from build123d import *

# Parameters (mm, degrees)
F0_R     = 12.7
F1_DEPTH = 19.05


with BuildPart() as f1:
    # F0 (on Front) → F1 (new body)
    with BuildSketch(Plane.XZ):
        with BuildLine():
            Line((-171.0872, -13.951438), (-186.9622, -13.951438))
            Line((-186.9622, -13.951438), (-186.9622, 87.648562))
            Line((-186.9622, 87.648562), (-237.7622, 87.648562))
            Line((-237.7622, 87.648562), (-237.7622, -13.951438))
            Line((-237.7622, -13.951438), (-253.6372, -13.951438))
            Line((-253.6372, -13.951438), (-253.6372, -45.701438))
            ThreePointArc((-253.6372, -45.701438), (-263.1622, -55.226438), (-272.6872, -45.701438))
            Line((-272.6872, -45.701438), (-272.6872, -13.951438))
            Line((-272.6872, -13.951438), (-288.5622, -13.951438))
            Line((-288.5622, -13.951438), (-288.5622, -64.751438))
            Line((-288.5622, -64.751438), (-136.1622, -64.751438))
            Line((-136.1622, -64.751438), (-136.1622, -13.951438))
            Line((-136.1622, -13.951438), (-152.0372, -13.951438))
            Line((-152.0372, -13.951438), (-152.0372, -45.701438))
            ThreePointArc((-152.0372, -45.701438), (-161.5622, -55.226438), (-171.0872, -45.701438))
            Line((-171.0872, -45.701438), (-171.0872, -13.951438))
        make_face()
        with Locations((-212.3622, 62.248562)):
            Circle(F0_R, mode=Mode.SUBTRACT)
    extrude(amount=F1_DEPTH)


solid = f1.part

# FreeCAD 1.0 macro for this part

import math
import FreeCAD as App
import Part
import Sketcher
from FreeCAD import Vector
Q = App.Units.Quantity

doc = App.newDocument("Part")
body = doc.addObject("PartDesign::Body", "Body")

# Sketch on XZ plane
sketch1 = doc.addObject("Sketcher::SketchObject", "Sketch")
body.addObject(sketch1)
sketch1.AttachmentSupport = (doc.XZ_Plane, [""])
sketch1.MapMode = "FlatFace"
sketch1.addGeometry([
    Part.LineSegment(Vector(-171, -14, 0), Vector(-187, -14, 0)),  # 0
    Part.LineSegment(Vector(-187, -14, 0), Vector(-187, 88, 0)),  # 1
    Part.LineSegment(Vector(-187, 88, 0), Vector(-238, 88, 0)),  # 2
    Part.LineSegment(Vector(-238, 88, 0), Vector(-238, -14, 0)),  # 3
    Part.LineSegment(Vector(-238, -14, 0), Vector(-254, -14, 0)),  # 4
    Part.LineSegment(Vector(-254, -14, 0), Vector(-254, -46, 0)),  # 5
    Part.ArcOfCircle(Part.Circle(Vector(-263, -46, 0), Vector(0, 0, 1), 10), math.radians(180), math.radians(360)),  # 6
    Part.LineSegment(Vector(-273, -46, 0), Vector(-273, -14, 0)),  # 7
    Part.LineSegment(Vector(-273, -14, 0), Vector(-289, -14, 0)),  # 8
    Part.LineSegment(Vector(-289, -14, 0), Vector(-289, -65, 0)),  # 9
    Part.LineSegment(Vector(-289, -65, 0), Vector(-136, -65, 0)),  # 10
    Part.LineSegment(Vector(-136, -65, 0), Vector(-136, -14, 0)),  # 11
    Part.LineSegment(Vector(-136, -14, 0), Vector(-152, -14, 0)),  # 12
    Part.LineSegment(Vector(-152, -14, 0), Vector(-152, -46, 0)),  # 13
    Part.ArcOfCircle(Part.Circle(Vector(-162, -46, 0), Vector(0, 0, 1), 10), math.radians(180), math.radians(360)),  # 14
    Part.LineSegment(Vector(-171, -46, 0), Vector(-171, -14, 0)),  # 15
    Part.Circle(Vector(-212, 62, 0), Vector(0, 0, 1), 13),  # 16
], False)
sketch1.addConstraint([
    Sketcher.Constraint("Coincident", 0, 2, 1, 1),
    Sketcher.Constraint("Coincident", 1, 2, 2, 1),
    Sketcher.Constraint("Coincident", 2, 2, 3, 1),
    Sketcher.Constraint("Coincident", 3, 2, 4, 1),
    Sketcher.Constraint("Coincident", 4, 2, 5, 1),
    Sketcher.Constraint("Tangent", 5, 2, 6, 2),
    Sketcher.Constraint("Tangent", 6, 1, 7, 1),
    Sketcher.Constraint("Coincident", 7, 2, 8, 1),
    Sketcher.Constraint("Coincident", 8, 2, 9, 1),
    Sketcher.Constraint("Coincident", 9, 2, 10, 1),
    Sketcher.Constraint("Coincident", 10, 2, 11, 1),
    Sketcher.Constraint("Coincident", 11, 2, 12, 1),
    Sketcher.Constraint("Coincident", 12, 2, 13, 1),
    Sketcher.Constraint("Tangent", 13, 2, 14, 2),
    Sketcher.Constraint("Tangent", 14, 1, 15, 1),
    Sketcher.Constraint("Coincident", 15, 2, 0, 1),
    Sketcher.Constraint("Horizontal", 0),
    Sketcher.Constraint("Vertical", 1),
    Sketcher.Constraint("Horizontal", 2),
    Sketcher.Constraint("Vertical", 3),
    Sketcher.Constraint("Horizontal", 4),
    Sketcher.Constraint("Vertical", 5),
    Sketcher.Constraint("Vertical", 7),
    Sketcher.Constraint("Horizontal", 8),
    Sketcher.Constraint("Vertical", 9),
    Sketcher.Constraint("Horizontal", 10),
    Sketcher.Constraint("Vertical", 11),
    Sketcher.Constraint("Horizontal", 12),
    Sketcher.Constraint("Vertical", 13),
    Sketcher.Constraint("Vertical", 15),
    Sketcher.Constraint("Equal", 6, 14),
    Sketcher.Constraint("Horizontal", 6, 3, 14, 3),
    Sketcher.Constraint("Horizontal", 0, 2, 3, 2),
    Sketcher.Constraint("Horizontal", 4, 2, 7, 2),
    Sketcher.Constraint("Horizontal", 8, 2, 11, 2),
    Sketcher.Constraint("Equal", 0, 4),
    Sketcher.Constraint("Equal", 4, 8),
    Sketcher.Constraint("Equal", 8, 12),
    Sketcher.Constraint("Equal", 2, 9),
    Sketcher.Constraint("Diameter", 16, Q("1 in")),
    Sketcher.Constraint("DistanceX", 2, 2, 2, 1, Q("2 in")),
    Sketcher.Constraint("DistanceX", 10, 1, 10, 2, Q("6 in")),
    Sketcher.Constraint("DistanceY", 1, 1, 1, 2, Q("4 in")),
    Sketcher.Constraint("Radius", 6, Q("0.375 in")),
    Sketcher.Constraint("DistanceX", 6, 3, 16, 3, Q("2 in")),
    Sketcher.Constraint("DistanceY", 0, 2, 16, 3, Q("3 in")),
    Sketcher.Constraint("DistanceY", 5, 2, 5, 1, Q("1.25 in")),
    Sketcher.Constraint("DistanceX", 6, 3, -1, 1, Q("263.1622 mm")),
    Sketcher.Constraint("DistanceY", 6, 3, -1, 1, Q("45.701438 mm")),
])
pad1 = doc.addObject("PartDesign::Pad", "Pad")
body.addObject(pad1)
pad1.Profile = sketch1
pad1.Length = Q("0.75 in")

doc.recompute()
